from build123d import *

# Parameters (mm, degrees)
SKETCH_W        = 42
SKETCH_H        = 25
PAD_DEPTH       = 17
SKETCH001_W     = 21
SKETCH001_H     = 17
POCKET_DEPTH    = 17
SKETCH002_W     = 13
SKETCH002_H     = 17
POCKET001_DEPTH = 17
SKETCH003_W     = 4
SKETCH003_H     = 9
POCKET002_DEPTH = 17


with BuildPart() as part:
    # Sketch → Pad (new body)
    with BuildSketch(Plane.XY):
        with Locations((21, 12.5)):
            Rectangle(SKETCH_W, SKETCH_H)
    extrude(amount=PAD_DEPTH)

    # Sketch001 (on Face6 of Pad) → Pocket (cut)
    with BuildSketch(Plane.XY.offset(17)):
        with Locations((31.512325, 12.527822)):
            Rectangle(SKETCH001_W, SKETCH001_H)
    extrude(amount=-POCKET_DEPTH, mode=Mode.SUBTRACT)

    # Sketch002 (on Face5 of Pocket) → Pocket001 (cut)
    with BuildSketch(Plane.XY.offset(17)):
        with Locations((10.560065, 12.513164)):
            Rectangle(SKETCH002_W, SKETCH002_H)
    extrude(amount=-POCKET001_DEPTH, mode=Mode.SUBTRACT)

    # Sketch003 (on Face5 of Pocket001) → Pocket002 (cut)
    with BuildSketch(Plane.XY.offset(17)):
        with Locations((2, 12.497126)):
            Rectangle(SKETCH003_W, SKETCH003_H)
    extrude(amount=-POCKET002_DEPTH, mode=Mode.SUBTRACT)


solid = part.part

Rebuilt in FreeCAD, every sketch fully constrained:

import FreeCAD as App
import Part
import Sketcher
from FreeCAD import Vector

doc = App.newDocument("Part")
params = doc.addObject("Spreadsheet::Sheet", "Params")
for row, (alias, value) in enumerate([
    ("sketch1_width", "42 mm"),
    ("sketch1_height", "25 mm"),
    ("pad1_length", "17 mm"),
    ("sketch2_width", "21 mm"),
    ("sketch2_height", "17 mm"),
    ("pocket1_length", "17 mm"),
    ("sketch3_width", "13 mm"),
    ("sketch3_height", "17 mm"),
    ("pocket2_length", "17 mm"),
    ("sketch4_width", "4 mm"),
    ("sketch4_height", "9 mm"),
    ("pocket3_length", "17 mm"),
], start=1):
    params.set(f"A{row}", alias)
    params.set(f"B{row}", "=" + value)
    params.setAlias(f"B{row}", alias)

body = doc.addObject("PartDesign::Body", "Body")

# Sketch on XY plane
sketch1 = body.newObject("Sketcher::SketchObject", "Sketch")
sketch1.AttachmentSupport = (doc.getObject("XY_Plane"), [""])
sketch1.MapMode = "FlatFace"
sketch1.addGeometry(Part.LineSegment(Vector(0, 25, 0), Vector(0, 0, 0)), False)
sketch1.addGeometry(Part.LineSegment(Vector(0, 0, 0), Vector(42, 0, 0)), False)
sketch1.addGeometry(Part.LineSegment(Vector(42, 0, 0), Vector(42, 25, 0)), False)
sketch1.addGeometry(Part.LineSegment(Vector(42, 25, 0), Vector(0, 25, 0)), False)
sketch1.addConstraint(Sketcher.Constraint("Coincident", 0, 2, 1, 1))
sketch1.addConstraint(Sketcher.Constraint("Coincident", 1, 2, 2, 1))
sketch1.addConstraint(Sketcher.Constraint("Coincident", 2, 2, 3, 1))
sketch1.addConstraint(Sketcher.Constraint("Coincident", 3, 2, 0, 1))
sketch1.addConstraint(Sketcher.Constraint("Vertical", 0))
sketch1.addConstraint(Sketcher.Constraint("Horizontal", 1))
sketch1.addConstraint(Sketcher.Constraint("Vertical", 2))
sketch1.addConstraint(Sketcher.Constraint("Horizontal", 3))
sketch1.addConstraint(Sketcher.Constraint("Coincident", 0, 2, -1, 1))
sketch1.addConstraint(Sketcher.Constraint("DistanceX", 1, 1, 1, 2, 42.0))
sketch1.addConstraint(Sketcher.Constraint("DistanceY", 0, 2, 0, 1, 25.0))
sketch1.setExpression("Constraints[9]", "Params.sketch1_width")
sketch1.setExpression("Constraints[10]", "Params.sketch1_height")
pad1 = body.newObject("PartDesign::Pad", "Pad")
pad1.Profile = sketch1
pad1.setExpression("Length", "Params.pad1_length")

# Sketch on XY plane
sketch2 = body.newObject("Sketcher::SketchObject", "Sketch001")
sketch2.AttachmentSupport = (doc.getObject("XY_Plane"), [""])
sketch2.MapMode = "FlatFace"
sketch2.AttachmentOffset = App.Placement(Vector(0, 0, 17), App.Rotation())
sketch2.addGeometry(Part.LineSegment(Vector(21, 21, 0), Vector(21, 4, 0)), False)
sketch2.addGeometry(Part.LineSegment(Vector(21, 4, 0), Vector(42, 4, 0)), False)
sketch2.addGeometry(Part.LineSegment(Vector(42, 4, 0), Vector(42, 21, 0)), False)
sketch2.addGeometry(Part.LineSegment(Vector(42, 21, 0), Vector(21, 21, 0)), False)
sketch2.addConstraint(Sketcher.Constraint("Coincident", 0, 2, 1, 1))
sketch2.addConstraint(Sketcher.Constraint("Coincident", 1, 2, 2, 1))
sketch2.addConstraint(Sketcher.Constraint("Coincident", 2, 2, 3, 1))
sketch2.addConstraint(Sketcher.Constraint("Coincident", 3, 2, 0, 1))
sketch2.addConstraint(Sketcher.Constraint("Vertical", 0))
sketch2.addConstraint(Sketcher.Constraint("Horizontal", 1))
sketch2.addConstraint(Sketcher.Constraint("Vertical", 2))
sketch2.addConstraint(Sketcher.Constraint("Horizontal", 3))
sketch2.addConstraint(Sketcher.Constraint("DistanceX", 1, 1, 1, 2, 21.0))
sketch2.addConstraint(Sketcher.Constraint("DistanceY", 0, 2, 0, 1, 17.0))
sketch2.addConstraint(Sketcher.Constraint("DistanceY", -1, 1, 0, 2, 4.027822))
sketch2.addConstraint(Sketcher.Constraint("DistanceX", -1, 1, 0, 2, 21.012325))
sketch2.setExpression("Constraints[8]", "Params.sketch2_width")
sketch2.setExpression("Constraints[9]", "Params.sketch2_height")
pocket1 = body.newObject("PartDesign::Pocket", "Pocket")
pocket1.Profile = sketch2
pocket1.setExpression("Length", "Params.pocket1_length")

# Sketch on XY plane
sketch3 = body.newObject("Sketcher::SketchObject", "Sketch002")
sketch3.AttachmentSupport = (doc.getObject("XY_Plane"), [""])
sketch3.MapMode = "FlatFace"
sketch3.AttachmentOffset = App.Placement(Vector(0, 0, 17), App.Rotation())
sketch3.addGeometry(Part.LineSegment(Vector(4, 21, 0), Vector(4, 4, 0)), False)
sketch3.addGeometry(Part.LineSegment(Vector(4, 4, 0), Vector(17, 4, 0)), False)
sketch3.addGeometry(Part.LineSegment(Vector(17, 4, 0), Vector(17, 21, 0)), False)
sketch3.addGeometry(Part.LineSegment(Vector(17, 21, 0), Vector(4, 21, 0)), False)
sketch3.addConstraint(Sketcher.Constraint("Coincident", 0, 2, 1, 1))
sketch3.addConstraint(Sketcher.Constraint("Coincident", 1, 2, 2, 1))
sketch3.addConstraint(Sketcher.Constraint("Coincident", 2, 2, 3, 1))
sketch3.addConstraint(Sketcher.Constraint("Coincident", 3, 2, 0, 1))
sketch3.addConstraint(Sketcher.Constraint("Vertical", 0))
sketch3.addConstraint(Sketcher.Constraint("Horizontal", 1))
sketch3.addConstraint(Sketcher.Constraint("Vertical", 2))
sketch3.addConstraint(Sketcher.Constraint("Horizontal", 3))
sketch3.addConstraint(Sketcher.Constraint("DistanceX", 1, 1, 1, 2, 13.0))
sketch3.addConstraint(Sketcher.Constraint("DistanceY", 0, 2, 0, 1, 17.0))
sketch3.addConstraint(Sketcher.Constraint("DistanceX", -1, 1, 0, 2, 4.060065))
sketch3.addConstraint(Sketcher.Constraint("DistanceY", -1, 1, 0, 2, 4.013164))
sketch3.setExpression("Constraints[8]", "Params.sketch3_width")
sketch3.setExpression("Constraints[9]", "Params.sketch3_height")
pocket2 = body.newObject("PartDesign::Pocket", "Pocket001")
pocket2.Profile = sketch3
pocket2.setExpression("Length", "Params.pocket2_length")

# Sketch on XY plane
sketch4 = body.newObject("Sketcher::SketchObject", "Sketch003")
sketch4.AttachmentSupport = (doc.getObject("XY_Plane"), [""])
sketch4.MapMode = "FlatFace"
sketch4.AttachmentOffset = App.Placement(Vector(0, 0, 17), App.Rotation())
sketch4.addGeometry(Part.LineSegment(Vector(0, 17, 0), Vector(0, 8, 0)), False)
sketch4.addGeometry(Part.LineSegment(Vector(0, 8, 0), Vector(4, 8, 0)), False)
sketch4.addGeometry(Part.LineSegment(Vector(4, 8, 0), Vector(4, 17, 0)), False)
sketch4.addGeometry(Part.LineSegment(Vector(4, 17, 0), Vector(0, 17, 0)), False)
sketch4.addConstraint(Sketcher.Constraint("Coincident", 0, 2, 1, 1))
sketch4.addConstraint(Sketcher.Constraint("Coincident", 1, 2, 2, 1))
sketch4.addConstraint(Sketcher.Constraint("Coincident", 2, 2, 3, 1))
sketch4.addConstraint(Sketcher.Constraint("Coincident", 3, 2, 0, 1))
sketch4.addConstraint(Sketcher.Constraint("Vertical", 0))
sketch4.addConstraint(Sketcher.Constraint("Horizontal", 1))
sketch4.addConstraint(Sketcher.Constraint("Vertical", 2))
sketch4.addConstraint(Sketcher.Constraint("Horizontal", 3))
sketch4.addConstraint(Sketcher.Constraint("PointOnObject", 0, 2, -2))
sketch4.addConstraint(Sketcher.Constraint("DistanceX", 1, 1, 1, 2, 4.0))
sketch4.addConstraint(Sketcher.Constraint("DistanceY", 0, 2, 0, 1, 9.0))
sketch4.addConstraint(Sketcher.Constraint("DistanceY", -1, 1, 0, 2, 7.997126))
sketch4.setExpression("Constraints[9]", "Params.sketch4_width")
sketch4.setExpression("Constraints[10]", "Params.sketch4_height")
pocket3 = body.newObject("PartDesign::Pocket", "Pocket002")
pocket3.Profile = sketch4
pocket3.setExpression("Length", "Params.pocket3_length")

doc.recompute()
